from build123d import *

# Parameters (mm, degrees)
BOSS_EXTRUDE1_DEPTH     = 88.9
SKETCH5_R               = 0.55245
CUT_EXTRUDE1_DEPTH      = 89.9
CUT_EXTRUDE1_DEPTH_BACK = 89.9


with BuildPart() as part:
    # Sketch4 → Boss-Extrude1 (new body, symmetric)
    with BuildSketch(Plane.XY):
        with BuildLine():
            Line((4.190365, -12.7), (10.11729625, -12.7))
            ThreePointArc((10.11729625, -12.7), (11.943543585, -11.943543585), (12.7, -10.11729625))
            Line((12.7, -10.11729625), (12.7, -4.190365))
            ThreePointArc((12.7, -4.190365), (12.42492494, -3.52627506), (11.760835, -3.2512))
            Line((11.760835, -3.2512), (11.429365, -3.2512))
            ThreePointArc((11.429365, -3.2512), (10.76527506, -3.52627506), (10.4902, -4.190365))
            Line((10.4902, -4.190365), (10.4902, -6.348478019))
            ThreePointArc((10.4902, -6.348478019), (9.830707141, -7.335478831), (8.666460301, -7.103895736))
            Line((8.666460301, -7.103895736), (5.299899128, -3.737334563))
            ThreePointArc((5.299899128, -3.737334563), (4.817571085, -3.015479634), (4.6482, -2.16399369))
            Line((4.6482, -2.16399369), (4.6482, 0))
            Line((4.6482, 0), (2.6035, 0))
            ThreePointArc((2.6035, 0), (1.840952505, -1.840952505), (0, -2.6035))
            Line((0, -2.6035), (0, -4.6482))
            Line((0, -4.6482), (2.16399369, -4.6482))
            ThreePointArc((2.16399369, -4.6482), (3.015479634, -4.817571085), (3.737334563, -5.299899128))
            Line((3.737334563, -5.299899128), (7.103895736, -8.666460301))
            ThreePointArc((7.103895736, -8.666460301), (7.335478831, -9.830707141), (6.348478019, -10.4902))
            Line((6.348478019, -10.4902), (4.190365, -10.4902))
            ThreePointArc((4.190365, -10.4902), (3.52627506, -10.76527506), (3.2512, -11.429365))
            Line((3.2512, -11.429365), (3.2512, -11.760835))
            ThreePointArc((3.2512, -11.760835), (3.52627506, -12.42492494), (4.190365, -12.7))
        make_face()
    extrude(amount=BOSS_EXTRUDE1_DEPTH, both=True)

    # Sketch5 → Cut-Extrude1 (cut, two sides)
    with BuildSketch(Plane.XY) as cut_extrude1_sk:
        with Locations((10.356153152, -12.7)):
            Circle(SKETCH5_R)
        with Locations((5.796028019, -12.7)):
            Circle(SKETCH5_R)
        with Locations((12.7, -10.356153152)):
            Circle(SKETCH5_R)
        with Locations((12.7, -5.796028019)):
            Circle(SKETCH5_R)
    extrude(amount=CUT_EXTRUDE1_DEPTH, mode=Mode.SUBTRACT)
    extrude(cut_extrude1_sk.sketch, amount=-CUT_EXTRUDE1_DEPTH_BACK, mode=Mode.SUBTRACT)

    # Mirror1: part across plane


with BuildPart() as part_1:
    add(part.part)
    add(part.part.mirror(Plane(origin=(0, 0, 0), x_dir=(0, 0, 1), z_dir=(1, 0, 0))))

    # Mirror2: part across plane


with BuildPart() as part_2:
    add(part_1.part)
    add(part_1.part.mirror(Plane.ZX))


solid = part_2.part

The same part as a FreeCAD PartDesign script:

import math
import FreeCAD as App
import Part
import Sketcher
from FreeCAD import Vector
Q = App.Units.Quantity

doc = App.newDocument("Part")
body = doc.addObject("PartDesign::Body", "Body")

# Sketch on XY plane
sketch1 = body.newObject("Sketcher::SketchObject", "Sketch")
sketch1.AttachmentSupport = (doc.getObject("XY_Plane"), [""])
sketch1.MapMode = "FlatFace"
sketch1.addGeometry([
    Part.LineSegment(Vector(4.19, -12.7, 0), Vector(10.12, -12.7, 0)),  # 0
    Part.ArcOfCircle(Part.Circle(Vector(10.12, -10.12, 0), Vector(0, 0, 1), 2.58), math.radians(-90), math.radians(0)),  # 1
    Part.LineSegment(Vector(12.7, -10.12, 0), Vector(12.7, -4.19, 0)),  # 2
    Part.ArcOfCircle(Part.Circle(Vector(11.76, -4.19, 0), Vector(0, 0, 1), 0.94), math.radians(0), math.radians(90)),  # 3
    Part.LineSegment(Vector(11.76, -3.25, 0), Vector(11.43, -3.25, 0)),  # 4
    Part.ArcOfCircle(Part.Circle(Vector(11.43, -4.19, 0), Vector(0, 0, 1), 0.94), math.radians(90), math.radians(180)),  # 5
    Part.LineSegment(Vector(10.49, -4.19, 0), Vector(10.49, -6.35, 0)),  # 6
    Part.ArcOfCircle(Part.Circle(Vector(9.42, -6.35, 0), Vector(0, 0, 1), 1.07), math.radians(-135), math.radians(0)),  # 7
    Part.LineSegment(Vector(8.67, -7.1, 0), Vector(5.3, -3.74, 0)),  # 8
    Part.ArcOfCircle(Part.Circle(Vector(6.87, -2.16, 0), Vector(0, 0, 1), 2.23), math.radians(-180), math.radians(-135)),  # 9
    Part.LineSegment(Vector(4.65, -2.16, 0), Vector(4.65, 0, 0)),  # 10
    Part.LineSegment(Vector(4.65, 0, 0), Vector(2.6, 0, 0)),  # 11
    Part.ArcOfCircle(Part.Circle(Vector(0, 0, 0), Vector(0, 0, 1), 2.6), math.radians(-90), math.radians(0)),  # 12
    Part.LineSegment(Vector(0, -2.6, 0), Vector(0, -4.65, 0)),  # 13
    Part.LineSegment(Vector(0, -4.65, 0), Vector(2.16, -4.65, 0)),  # 14
    Part.ArcOfCircle(Part.Circle(Vector(2.16, -6.87, 0), Vector(0, 0, 1), 2.23), math.radians(45), math.radians(90)),  # 15
    Part.LineSegment(Vector(3.74, -5.3, 0), Vector(7.1, -8.67, 0)),  # 16
    Part.ArcOfCircle(Part.Circle(Vector(6.35, -9.42, 0), Vector(0, 0, 1), 1.07), math.radians(-90), math.radians(45)),  # 17
    Part.LineSegment(Vector(6.35, -10.49, 0), Vector(4.19, -10.49, 0)),  # 18
    Part.ArcOfCircle(Part.Circle(Vector(4.19, -11.43, 0), Vector(0, 0, 1), 0.94), math.radians(90), math.radians(180)),  # 19
    Part.LineSegment(Vector(3.25, -11.43, 0), Vector(3.25, -11.76, 0)),  # 20
    Part.ArcOfCircle(Part.Circle(Vector(4.19, -11.76, 0), Vector(0, 0, 1), 0.94), math.radians(-180), math.radians(-90)),  # 21
], False)
sketch1.addConstraint([
    Sketcher.Constraint("Tangent", 0, 2, 1, 1),
    Sketcher.Constraint("Tangent", 1, 2, 2, 1),
    Sketcher.Constraint("Tangent", 2, 2, 3, 1),
    Sketcher.Constraint("Tangent", 3, 2, 4, 1),
    Sketcher.Constraint("Tangent", 4, 2, 5, 1),
    Sketcher.Constraint("Tangent", 5, 2, 6, 1),
    Sketcher.Constraint("Tangent", 6, 2, 7, 2),
    Sketcher.Constraint("Tangent", 7, 1, 8, 1),
    Sketcher.Constraint("Tangent", 8, 2, 9, 2),
    Sketcher.Constraint("Tangent", 9, 1, 10, 1),
    Sketcher.Constraint("Coincident", 10, 2, 11, 1),
    Sketcher.Constraint("Coincident", 11, 2, 12, 2),
    Sketcher.Constraint("Coincident", 12, 1, 13, 1),
    Sketcher.Constraint("Coincident", 13, 2, 14, 1),
    Sketcher.Constraint("Tangent", 14, 2, 15, 2),
    Sketcher.Constraint("Tangent", 15, 1, 16, 1),
    Sketcher.Constraint("Tangent", 16, 2, 17, 2),
    Sketcher.Constraint("Tangent", 17, 1, 18, 1),
    Sketcher.Constraint("Tangent", 18, 2, 19, 1),
    Sketcher.Constraint("Tangent", 19, 2, 20, 1),
    Sketcher.Constraint("Tangent", 20, 2, 21, 1),
    Sketcher.Constraint("Tangent", 21, 2, 0, 1),
    Sketcher.Constraint("Horizontal", 0),
    Sketcher.Constraint("Vertical", 2),
    Sketcher.Constraint("Horizontal", 4),
    Sketcher.Constraint("Vertical", 6),
    Sketcher.Constraint("Vertical", 10),
    Sketcher.Constraint("Horizontal", 11),
    Sketcher.Constraint("Vertical", 13),
    Sketcher.Constraint("Horizontal", 14),
    Sketcher.Constraint("Horizontal", 18),
    Sketcher.Constraint("Vertical", 20),
    Sketcher.Constraint("Coincident", 12, 3, -1, 1),
    Sketcher.Constraint("Equal", 3, 5),
    Sketcher.Constraint("Equal", 9, 15),
    Sketcher.Constraint("Equal", 7, 17),
    Sketcher.Constraint("Equal", 5, 19),
    Sketcher.Constraint("Equal", 19, 21),
    Sketcher.Constraint("PointOnObject", 10, 2, -1),
    Sketcher.Constraint("PointOnObject", 12, 1, -2),
    Sketcher.Constraint("Parallel", 8, 16),
    Sketcher.Constraint("Equal", 0, 2),
    Sketcher.Constraint("Equal", 18, 6),
    Sketcher.Constraint("Equal", 14, 10),
    Sketcher.Constraint("Equal", 11, 13),
    Sketcher.Constraint("Equal", 4, 20),
    Sketcher.Constraint("Equal", 8, 16),
    Sketcher.Constraint("DistanceY", 0, 2, -1, 1, Q("0.5 in")),
    Sketcher.Constraint("Radius", 9, Q("0.0876 in")),
    Sketcher.Constraint("Radius", 12, Q("0.1025 in")),
    Sketcher.Constraint("DistanceX", 9, 1, 5, 2, Q("0.23 in")),
    Sketcher.Constraint("DistanceX", 11, 2, 11, 1, Q("0.0805 in")),
    Sketcher.Constraint("DistanceY", 3, 2, -1, 1, Q("0.128 in")),
    Sketcher.Constraint("Radius", 7, Q("1.068322 mm")),
    Sketcher.Constraint("DistanceX", 17, 3, 7, 3, Q("0.121 in")),
    Sketcher.Constraint("Radius", 1, Q("2.582704 mm")),
    Sketcher.Constraint("Radius", 3, Q("0.939165 mm")),
])
pad1 = body.newObject("PartDesign::Pad", "Pad")
pad1.Profile = sketch1
pad1.Length = Q("7 in")
pad1.Midplane = True

# Sketch on XY plane
sketch2 = body.newObject("Sketcher::SketchObject", "Sketch001")
sketch2.AttachmentSupport = (doc.getObject("XY_Plane"), [""])
sketch2.MapMode = "FlatFace"
sketch2.addGeometry([
    Part.Circle(Vector(10.4, -12.7, 0), Vector(0, 0, 1), 0.6),
    Part.Circle(Vector(5.8, -12.7, 0), Vector(0, 0, 1), 0.6),
    Part.Circle(Vector(12.7, -10.4, 0), Vector(0, 0, 1), 0.6),
    Part.Circle(Vector(12.7, -5.8, 0), Vector(0, 0, 1), 0.6),
], False)
sketch2.addConstraint([
    Sketcher.Constraint("Equal", 0, 1),
    Sketcher.Constraint("Equal", 1, 2),
    Sketcher.Constraint("Equal", 2, 3),
    Sketcher.Constraint("Horizontal", 0, 3, 1, 3),
    Sketcher.Constraint("Vertical", 2, 3, 3, 3),
    Sketcher.Constraint("Diameter", 0, Q("0.0435 in")),
    Sketcher.Constraint("DistanceY", 0, 3, -1, 1, Q("0.5 in")),
    Sketcher.Constraint("DistanceX", -1, 1, 2, 3, Q("0.5 in")),
    Sketcher.Constraint("DistanceX", -1, 1, 1, 3, Q("5.796028 mm")),
    Sketcher.Constraint("DistanceY", 3, 3, -1, 1, Q("5.796028 mm")),
    Sketcher.Constraint("DistanceX", -1, 1, 0, 3, Q("10.356153 mm")),
    Sketcher.Constraint("DistanceY", 2, 3, -1, 1, Q("10.356153 mm")),
])
pocket1 = body.newObject("PartDesign::Pocket", "Pocket")
pocket1.Profile = sketch2
pocket1.Type = "ThroughAll"
pocket1.Midplane = True
body2 = doc.addObject("PartDesign::Body", "Body001")
doc.recompute()

body2.BaseFeature = body
doc.recompute()

mirroring = doc.addObject("Part::Mirroring", "Mirroring")
mirroring.Source = body
mirroring.Base = Vector(0, 0, 0)
mirroring.Normal = Vector(1, 0, 0)
body3 = doc.addObject("PartDesign::Body", "Body002")
body3.BaseFeature = mirroring
boolean = body2.newObject("PartDesign::Boolean", "Boolean")
boolean.Type = "Fuse"
boolean.addObjects([body3])
doc.recompute()
body4 = doc.addObject("PartDesign::Body", "Body003")
doc.recompute()

body4.BaseFeature = body2
doc.recompute()

mirroring2 = doc.addObject("Part::Mirroring", "Mirroring001")
mirroring2.Source = body2
mirroring2.Base = Vector(0, 0, 0)
mirroring2.Normal = Vector(0, 1, 0)
body5 = doc.addObject("PartDesign::Body", "Body004")
body5.BaseFeature = mirroring2
boolean2 = body4.newObject("PartDesign::Boolean", "Boolean001")
boolean2.Type = "Fuse"
boolean2.addObjects([body5])
doc.recompute()
mirroring.Visibility = False
mirroring2.Visibility = False

doc.recompute()
